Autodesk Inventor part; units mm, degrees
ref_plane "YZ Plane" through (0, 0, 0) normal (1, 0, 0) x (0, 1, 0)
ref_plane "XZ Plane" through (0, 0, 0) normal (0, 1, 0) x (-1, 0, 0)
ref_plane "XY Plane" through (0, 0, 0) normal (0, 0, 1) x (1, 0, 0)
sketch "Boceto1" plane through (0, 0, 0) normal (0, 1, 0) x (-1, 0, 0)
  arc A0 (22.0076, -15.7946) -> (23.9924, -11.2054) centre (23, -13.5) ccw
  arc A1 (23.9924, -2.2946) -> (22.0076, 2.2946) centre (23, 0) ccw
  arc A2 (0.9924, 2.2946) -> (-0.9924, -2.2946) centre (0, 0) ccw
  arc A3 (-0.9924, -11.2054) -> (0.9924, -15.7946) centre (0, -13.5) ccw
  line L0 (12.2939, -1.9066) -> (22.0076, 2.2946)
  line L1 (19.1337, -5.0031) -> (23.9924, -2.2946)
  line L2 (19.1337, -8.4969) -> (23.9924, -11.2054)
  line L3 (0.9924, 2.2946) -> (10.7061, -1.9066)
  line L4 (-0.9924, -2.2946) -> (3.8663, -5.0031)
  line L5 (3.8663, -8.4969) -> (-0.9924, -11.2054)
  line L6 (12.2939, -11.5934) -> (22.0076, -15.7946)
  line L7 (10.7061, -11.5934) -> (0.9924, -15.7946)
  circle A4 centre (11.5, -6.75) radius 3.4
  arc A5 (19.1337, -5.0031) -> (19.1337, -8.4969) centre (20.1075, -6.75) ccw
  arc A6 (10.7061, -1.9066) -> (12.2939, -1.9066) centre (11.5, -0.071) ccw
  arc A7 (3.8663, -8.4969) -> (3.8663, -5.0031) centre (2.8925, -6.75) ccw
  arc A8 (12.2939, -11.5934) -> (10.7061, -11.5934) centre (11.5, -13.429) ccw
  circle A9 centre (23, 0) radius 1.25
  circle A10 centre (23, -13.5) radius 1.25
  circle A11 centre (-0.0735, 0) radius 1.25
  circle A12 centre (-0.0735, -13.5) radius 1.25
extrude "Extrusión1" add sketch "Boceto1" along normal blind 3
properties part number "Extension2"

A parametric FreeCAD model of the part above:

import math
import FreeCAD as App
import Part
import Sketcher
from FreeCAD import Vector
Q = App.Units.Quantity

doc = App.newDocument("Part")
body = doc.addObject("PartDesign::Body", "Body")

# Sketch on XZ plane
sketch1 = body.newObject("Sketcher::SketchObject", "Sketch")
sketch1.AttachmentSupport = (doc.getObject("XZ_Plane"), [""])
sketch1.MapMode = "FlatFace"
sketch1.addGeometry(Part.LineSegment(Vector(-12.2939, -11.5934, 0), Vector(-22.0076, -15.7946, 0)), False)
sketch1.addGeometry(Part.ArcOfCircle(Part.Circle(Vector(-23, -13.5, 0), Vector(0, 0, 1), 2.500009), math.radians(113.388177), math.radians(293.388177)), False)
sketch1.addGeometry(Part.LineSegment(Vector(-23.9924, -11.2054, 0), Vector(-19.1337, -8.4969, 0)), False)
sketch1.addGeometry(Part.ArcOfCircle(Part.Circle(Vector(-20.1075, -6.75, 0), Vector(0, 0, 1), 1.999987), math.radians(-60.862754), math.radians(60.862754)), False)
sketch1.addGeometry(Part.LineSegment(Vector(-19.1337, -5.0031, 0), Vector(-23.9924, -2.2946, 0)), False)
sketch1.addGeometry(Part.ArcOfCircle(Part.Circle(Vector(-23, 0, 0), Vector(0, 0, 1), 2.500009), math.radians(66.611823), math.radians(246.611823)), False)
sketch1.addGeometry(Part.LineSegment(Vector(-22.0076, 2.2946, 0), Vector(-12.2939, -1.9066, 0)), False)
sketch1.addGeometry(Part.ArcOfCircle(Part.Circle(Vector(-11.5, -0.071, 0), Vector(0, 0, 1), 1.999926), math.radians(-113.388561), math.radians(-66.611439)), False)
sketch1.addGeometry(Part.LineSegment(Vector(-10.7061, -1.9066, 0), Vector(-0.9924, 2.2946, 0)), False)
sketch1.addGeometry(Part.ArcOfCircle(Part.Circle(Vector(0, 0, 0), Vector(0, 0, 1), 2.500009), math.radians(-66.611823), math.radians(113.388177)), False)
sketch1.addGeometry(Part.LineSegment(Vector(0.9924, -2.2946, 0), Vector(-3.8663, -5.0031, 0)), False)
sketch1.addGeometry(Part.ArcOfCircle(Part.Circle(Vector(-2.8925, -6.75, 0), Vector(0, 0, 1), 1.999987), math.radians(119.137246), math.radians(240.862754)), False)
sketch1.addGeometry(Part.LineSegment(Vector(-3.8663, -8.4969, 0), Vector(0.9924, -11.2054, 0)), False)
sketch1.addGeometry(Part.ArcOfCircle(Part.Circle(Vector(0, -13.5, 0), Vector(0, 0, 1), 2.500009), math.radians(-113.388177), math.radians(66.611823)), False)
sketch1.addGeometry(Part.LineSegment(Vector(-0.9924, -15.7946, 0), Vector(-10.7061, -11.5934, 0)), False)
sketch1.addGeometry(Part.ArcOfCircle(Part.Circle(Vector(-11.5, -13.429, 0), Vector(0, 0, 1), 1.999926), math.radians(66.611439), math.radians(113.388561)), False)
sketch1.addGeometry(Part.Circle(Vector(0.0735, -13.5, 0), Vector(0, 0, 1), 1.25), False)
sketch1.addGeometry(Part.Circle(Vector(-23, -13.5, 0), Vector(0, 0, 1), 1.25), False)
sketch1.addGeometry(Part.Circle(Vector(0.0735, 0, 0), Vector(0, 0, 1), 1.25), False)
sketch1.addGeometry(Part.Circle(Vector(-11.5, -6.75, 0), Vector(0, 0, 1), 3.4), False)
sketch1.addGeometry(Part.Circle(Vector(-23, 0, 0), Vector(0, 0, 1), 1.25), False)
sketch1.addConstraint(Sketcher.Constraint("Coincident", 0, 2, 1, 2))
sketch1.addConstraint(Sketcher.Constraint("Coincident", 1, 1, 2, 1))
sketch1.addConstraint(Sketcher.Constraint("Coincident", 2, 2, 3, 1))
sketch1.addConstraint(Sketcher.Constraint("Coincident", 3, 2, 4, 1))
sketch1.addConstraint(Sketcher.Constraint("Coincident", 4, 2, 5, 2))
sketch1.addConstraint(Sketcher.Constraint("Coincident", 5, 1, 6, 1))
sketch1.addConstraint(Sketcher.Constraint("Coincident", 6, 2, 7, 1))
sketch1.addConstraint(Sketcher.Constraint("Coincident", 7, 2, 8, 1))
sketch1.addConstraint(Sketcher.Constraint("Coincident", 8, 2, 9, 2))
sketch1.addConstraint(Sketcher.Constraint("Coincident", 9, 1, 10, 1))
sketch1.addConstraint(Sketcher.Constraint("Coincident", 10, 2, 11, 1))
sketch1.addConstraint(Sketcher.Constraint("Coincident", 11, 2, 12, 1))
sketch1.addConstraint(Sketcher.Constraint("Coincident", 12, 2, 13, 2))
sketch1.addConstraint(Sketcher.Constraint("Coincident", 13, 1, 14, 1))
sketch1.addConstraint(Sketcher.Constraint("Coincident", 14, 2, 15, 1))
sketch1.addConstraint(Sketcher.Constraint("Coincident", 15, 2, 0, 1))
sketch1.addConstraint(Sketcher.Constraint("Coincident", 9, 3, -1, 1))
sketch1.addConstraint(Sketcher.Constraint("Coincident", 17, 3, 1, 3))
sketch1.addConstraint(Sketcher.Constraint("Coincident", 20, 3, 5, 3))
sketch1.addConstraint(Sketcher.Constraint("PointOnObject", 5, 3, -1))
sketch1.addConstraint(Sketcher.Constraint("PointOnObject", 13, 3, -2))
sketch1.addConstraint(Sketcher.Constraint("PointOnObject", 18, 3, -1))
sketch1.addConstraint(Sketcher.Constraint("Radius", 3, Q("2 mm")))
sketch1.addConstraint(Sketcher.Constraint("Radius", 7, Q("2 mm")))
sketch1.addConstraint(Sketcher.Constraint("Radius", 11, Q("2 mm")))
sketch1.addConstraint(Sketcher.Constraint("Radius", 15, Q("2 mm")))
sketch1.addConstraint(Sketcher.Constraint("Diameter", 16, Q("2.5 mm")))
sketch1.addConstraint(Sketcher.Constraint("Diameter", 17, Q("2.5 mm")))
sketch1.addConstraint(Sketcher.Constraint("Diameter", 18, Q("2.5 mm")))
sketch1.addConstraint(Sketcher.Constraint("Diameter", 19, Q("6.8 mm")))
sketch1.addConstraint(Sketcher.Constraint("Diameter", 20, Q("2.5 mm")))
sketch1.addConstraint(Sketcher.Constraint("Radius", 1, Q("2.5 mm")))
sketch1.addConstraint(Sketcher.Constraint("Radius", 5, Q("2.5 mm")))
sketch1.addConstraint(Sketcher.Constraint("Radius", 9, Q("2.5 mm")))
sketch1.addConstraint(Sketcher.Constraint("Radius", 13, Q("2.5 mm")))
sketch1.addConstraint(Sketcher.Constraint("DistanceX", 1, 3, -1, 1, Q("23 mm")))
sketch1.addConstraint(Sketcher.Constraint("DistanceX", 5, 3, -1, 1, Q("23 mm")))
sketch1.addConstraint(Sketcher.Constraint("DistanceY", 1, 3, -1, 1, Q("13.5 mm")))
sketch1.addConstraint(Sketcher.Constraint("DistanceX", 7, 3, -1, 1, Q("11.5 mm")))
sketch1.addConstraint(Sketcher.Constraint("DistanceY", 13, 3, -1, 1, Q("13.5 mm")))
sketch1.addConstraint(Sketcher.Constraint("DistanceX", 15, 3, -1, 1, Q("11.5 mm")))
sketch1.addConstraint(Sketcher.Constraint("DistanceY", 16, 3, -1, 1, Q("13.5 mm")))
sketch1.addConstraint(Sketcher.Constraint("DistanceX", 19, 3, -1, 1, Q("11.5 mm")))
sketch1.addConstraint(Sketcher.Constraint("DistanceX", 0, 2, 3, 3, Q("1.9 mm")))
sketch1.addConstraint(Sketcher.Constraint("DistanceX", 5, 1, 3, 3, Q("1.9 mm")))
sketch1.addConstraint(Sketcher.Constraint("DistanceX", 11, 3, 8, 2, Q("1.9 mm")))
sketch1.addConstraint(Sketcher.Constraint("DistanceX", 11, 3, 13, 1, Q("1.9 mm")))
sketch1.addConstraint(Sketcher.Constraint("DistanceY", 3, 3, -1, 1, Q("6.75 mm")))
sketch1.addConstraint(Sketcher.Constraint("DistanceY", 11, 3, -1, 1, Q("6.75 mm")))
sketch1.addConstraint(Sketcher.Constraint("DistanceY", 19, 3, -1, 1, Q("6.75 mm")))
sketch1.addConstraint(Sketcher.Constraint("DistanceY", 7, 3, -1, 1, Q("0.071 mm")))
sketch1.addConstraint(Sketcher.Constraint("DistanceY", 15, 3, -1, 1, Q("13.429 mm")))
sketch1.addConstraint(Sketcher.Constraint("DistanceY", 2, 2, -1, 1, Q("8.497 mm")))
sketch1.addConstraint(Sketcher.Constraint("DistanceY", 3, 2, -1, 1, Q("5.003 mm")))
sketch1.addConstraint(Sketcher.Constraint("DistanceX", 6, 2, -1, 1, Q("12.294 mm")))
sketch1.addConstraint(Sketcher.Constraint("DistanceX", 7, 2, -1, 1, Q("10.706 mm")))
sketch1.addConstraint(Sketcher.Constraint("DistanceY", 10, 2, -1, 1, Q("5.003 mm")))
sketch1.addConstraint(Sketcher.Constraint("DistanceY", 11, 2, -1, 1, Q("8.497 mm")))
sketch1.addConstraint(Sketcher.Constraint("DistanceX", 14, 2, -1, 1, Q("10.706 mm")))
sketch1.addConstraint(Sketcher.Constraint("DistanceX", 15, 2, -1, 1, Q("12.294 mm")))
sketch1.addConstraint(Sketcher.Constraint("DistanceX", 3, 3, 11, 3, Q("17.215 mm")))
sketch1.addConstraint(Sketcher.Constraint("DistanceX", 11, 3, 16, 3, Q("2.966 mm")))
sketch1.addConstraint(Sketcher.Constraint("DistanceX", 11, 3, 18, 3, Q("2.966 mm")))
sketch1.addConstraint(Sketcher.Constraint("DistanceX", 1, 1, 3, 3, Q("3.885 mm")))
sketch1.addConstraint(Sketcher.Constraint("DistanceX", 4, 2, 3, 3, Q("3.885 mm")))
sketch1.addConstraint(Sketcher.Constraint("DistanceX", 18, 3, 9, 1, Q("0.919 mm")))
sketch1.addConstraint(Sketcher.Constraint("DistanceX", 16, 3, 12, 2, Q("0.919 mm")))
sketch1.addConstraint(Sketcher.Constraint("Distance", 0, Q("10.5833 mm")))
pad1 = body.newObject("PartDesign::Pad", "Pad")
pad1.Profile = sketch1
pad1.Length = 3
pad1.Reversed = True

doc.recompute()
